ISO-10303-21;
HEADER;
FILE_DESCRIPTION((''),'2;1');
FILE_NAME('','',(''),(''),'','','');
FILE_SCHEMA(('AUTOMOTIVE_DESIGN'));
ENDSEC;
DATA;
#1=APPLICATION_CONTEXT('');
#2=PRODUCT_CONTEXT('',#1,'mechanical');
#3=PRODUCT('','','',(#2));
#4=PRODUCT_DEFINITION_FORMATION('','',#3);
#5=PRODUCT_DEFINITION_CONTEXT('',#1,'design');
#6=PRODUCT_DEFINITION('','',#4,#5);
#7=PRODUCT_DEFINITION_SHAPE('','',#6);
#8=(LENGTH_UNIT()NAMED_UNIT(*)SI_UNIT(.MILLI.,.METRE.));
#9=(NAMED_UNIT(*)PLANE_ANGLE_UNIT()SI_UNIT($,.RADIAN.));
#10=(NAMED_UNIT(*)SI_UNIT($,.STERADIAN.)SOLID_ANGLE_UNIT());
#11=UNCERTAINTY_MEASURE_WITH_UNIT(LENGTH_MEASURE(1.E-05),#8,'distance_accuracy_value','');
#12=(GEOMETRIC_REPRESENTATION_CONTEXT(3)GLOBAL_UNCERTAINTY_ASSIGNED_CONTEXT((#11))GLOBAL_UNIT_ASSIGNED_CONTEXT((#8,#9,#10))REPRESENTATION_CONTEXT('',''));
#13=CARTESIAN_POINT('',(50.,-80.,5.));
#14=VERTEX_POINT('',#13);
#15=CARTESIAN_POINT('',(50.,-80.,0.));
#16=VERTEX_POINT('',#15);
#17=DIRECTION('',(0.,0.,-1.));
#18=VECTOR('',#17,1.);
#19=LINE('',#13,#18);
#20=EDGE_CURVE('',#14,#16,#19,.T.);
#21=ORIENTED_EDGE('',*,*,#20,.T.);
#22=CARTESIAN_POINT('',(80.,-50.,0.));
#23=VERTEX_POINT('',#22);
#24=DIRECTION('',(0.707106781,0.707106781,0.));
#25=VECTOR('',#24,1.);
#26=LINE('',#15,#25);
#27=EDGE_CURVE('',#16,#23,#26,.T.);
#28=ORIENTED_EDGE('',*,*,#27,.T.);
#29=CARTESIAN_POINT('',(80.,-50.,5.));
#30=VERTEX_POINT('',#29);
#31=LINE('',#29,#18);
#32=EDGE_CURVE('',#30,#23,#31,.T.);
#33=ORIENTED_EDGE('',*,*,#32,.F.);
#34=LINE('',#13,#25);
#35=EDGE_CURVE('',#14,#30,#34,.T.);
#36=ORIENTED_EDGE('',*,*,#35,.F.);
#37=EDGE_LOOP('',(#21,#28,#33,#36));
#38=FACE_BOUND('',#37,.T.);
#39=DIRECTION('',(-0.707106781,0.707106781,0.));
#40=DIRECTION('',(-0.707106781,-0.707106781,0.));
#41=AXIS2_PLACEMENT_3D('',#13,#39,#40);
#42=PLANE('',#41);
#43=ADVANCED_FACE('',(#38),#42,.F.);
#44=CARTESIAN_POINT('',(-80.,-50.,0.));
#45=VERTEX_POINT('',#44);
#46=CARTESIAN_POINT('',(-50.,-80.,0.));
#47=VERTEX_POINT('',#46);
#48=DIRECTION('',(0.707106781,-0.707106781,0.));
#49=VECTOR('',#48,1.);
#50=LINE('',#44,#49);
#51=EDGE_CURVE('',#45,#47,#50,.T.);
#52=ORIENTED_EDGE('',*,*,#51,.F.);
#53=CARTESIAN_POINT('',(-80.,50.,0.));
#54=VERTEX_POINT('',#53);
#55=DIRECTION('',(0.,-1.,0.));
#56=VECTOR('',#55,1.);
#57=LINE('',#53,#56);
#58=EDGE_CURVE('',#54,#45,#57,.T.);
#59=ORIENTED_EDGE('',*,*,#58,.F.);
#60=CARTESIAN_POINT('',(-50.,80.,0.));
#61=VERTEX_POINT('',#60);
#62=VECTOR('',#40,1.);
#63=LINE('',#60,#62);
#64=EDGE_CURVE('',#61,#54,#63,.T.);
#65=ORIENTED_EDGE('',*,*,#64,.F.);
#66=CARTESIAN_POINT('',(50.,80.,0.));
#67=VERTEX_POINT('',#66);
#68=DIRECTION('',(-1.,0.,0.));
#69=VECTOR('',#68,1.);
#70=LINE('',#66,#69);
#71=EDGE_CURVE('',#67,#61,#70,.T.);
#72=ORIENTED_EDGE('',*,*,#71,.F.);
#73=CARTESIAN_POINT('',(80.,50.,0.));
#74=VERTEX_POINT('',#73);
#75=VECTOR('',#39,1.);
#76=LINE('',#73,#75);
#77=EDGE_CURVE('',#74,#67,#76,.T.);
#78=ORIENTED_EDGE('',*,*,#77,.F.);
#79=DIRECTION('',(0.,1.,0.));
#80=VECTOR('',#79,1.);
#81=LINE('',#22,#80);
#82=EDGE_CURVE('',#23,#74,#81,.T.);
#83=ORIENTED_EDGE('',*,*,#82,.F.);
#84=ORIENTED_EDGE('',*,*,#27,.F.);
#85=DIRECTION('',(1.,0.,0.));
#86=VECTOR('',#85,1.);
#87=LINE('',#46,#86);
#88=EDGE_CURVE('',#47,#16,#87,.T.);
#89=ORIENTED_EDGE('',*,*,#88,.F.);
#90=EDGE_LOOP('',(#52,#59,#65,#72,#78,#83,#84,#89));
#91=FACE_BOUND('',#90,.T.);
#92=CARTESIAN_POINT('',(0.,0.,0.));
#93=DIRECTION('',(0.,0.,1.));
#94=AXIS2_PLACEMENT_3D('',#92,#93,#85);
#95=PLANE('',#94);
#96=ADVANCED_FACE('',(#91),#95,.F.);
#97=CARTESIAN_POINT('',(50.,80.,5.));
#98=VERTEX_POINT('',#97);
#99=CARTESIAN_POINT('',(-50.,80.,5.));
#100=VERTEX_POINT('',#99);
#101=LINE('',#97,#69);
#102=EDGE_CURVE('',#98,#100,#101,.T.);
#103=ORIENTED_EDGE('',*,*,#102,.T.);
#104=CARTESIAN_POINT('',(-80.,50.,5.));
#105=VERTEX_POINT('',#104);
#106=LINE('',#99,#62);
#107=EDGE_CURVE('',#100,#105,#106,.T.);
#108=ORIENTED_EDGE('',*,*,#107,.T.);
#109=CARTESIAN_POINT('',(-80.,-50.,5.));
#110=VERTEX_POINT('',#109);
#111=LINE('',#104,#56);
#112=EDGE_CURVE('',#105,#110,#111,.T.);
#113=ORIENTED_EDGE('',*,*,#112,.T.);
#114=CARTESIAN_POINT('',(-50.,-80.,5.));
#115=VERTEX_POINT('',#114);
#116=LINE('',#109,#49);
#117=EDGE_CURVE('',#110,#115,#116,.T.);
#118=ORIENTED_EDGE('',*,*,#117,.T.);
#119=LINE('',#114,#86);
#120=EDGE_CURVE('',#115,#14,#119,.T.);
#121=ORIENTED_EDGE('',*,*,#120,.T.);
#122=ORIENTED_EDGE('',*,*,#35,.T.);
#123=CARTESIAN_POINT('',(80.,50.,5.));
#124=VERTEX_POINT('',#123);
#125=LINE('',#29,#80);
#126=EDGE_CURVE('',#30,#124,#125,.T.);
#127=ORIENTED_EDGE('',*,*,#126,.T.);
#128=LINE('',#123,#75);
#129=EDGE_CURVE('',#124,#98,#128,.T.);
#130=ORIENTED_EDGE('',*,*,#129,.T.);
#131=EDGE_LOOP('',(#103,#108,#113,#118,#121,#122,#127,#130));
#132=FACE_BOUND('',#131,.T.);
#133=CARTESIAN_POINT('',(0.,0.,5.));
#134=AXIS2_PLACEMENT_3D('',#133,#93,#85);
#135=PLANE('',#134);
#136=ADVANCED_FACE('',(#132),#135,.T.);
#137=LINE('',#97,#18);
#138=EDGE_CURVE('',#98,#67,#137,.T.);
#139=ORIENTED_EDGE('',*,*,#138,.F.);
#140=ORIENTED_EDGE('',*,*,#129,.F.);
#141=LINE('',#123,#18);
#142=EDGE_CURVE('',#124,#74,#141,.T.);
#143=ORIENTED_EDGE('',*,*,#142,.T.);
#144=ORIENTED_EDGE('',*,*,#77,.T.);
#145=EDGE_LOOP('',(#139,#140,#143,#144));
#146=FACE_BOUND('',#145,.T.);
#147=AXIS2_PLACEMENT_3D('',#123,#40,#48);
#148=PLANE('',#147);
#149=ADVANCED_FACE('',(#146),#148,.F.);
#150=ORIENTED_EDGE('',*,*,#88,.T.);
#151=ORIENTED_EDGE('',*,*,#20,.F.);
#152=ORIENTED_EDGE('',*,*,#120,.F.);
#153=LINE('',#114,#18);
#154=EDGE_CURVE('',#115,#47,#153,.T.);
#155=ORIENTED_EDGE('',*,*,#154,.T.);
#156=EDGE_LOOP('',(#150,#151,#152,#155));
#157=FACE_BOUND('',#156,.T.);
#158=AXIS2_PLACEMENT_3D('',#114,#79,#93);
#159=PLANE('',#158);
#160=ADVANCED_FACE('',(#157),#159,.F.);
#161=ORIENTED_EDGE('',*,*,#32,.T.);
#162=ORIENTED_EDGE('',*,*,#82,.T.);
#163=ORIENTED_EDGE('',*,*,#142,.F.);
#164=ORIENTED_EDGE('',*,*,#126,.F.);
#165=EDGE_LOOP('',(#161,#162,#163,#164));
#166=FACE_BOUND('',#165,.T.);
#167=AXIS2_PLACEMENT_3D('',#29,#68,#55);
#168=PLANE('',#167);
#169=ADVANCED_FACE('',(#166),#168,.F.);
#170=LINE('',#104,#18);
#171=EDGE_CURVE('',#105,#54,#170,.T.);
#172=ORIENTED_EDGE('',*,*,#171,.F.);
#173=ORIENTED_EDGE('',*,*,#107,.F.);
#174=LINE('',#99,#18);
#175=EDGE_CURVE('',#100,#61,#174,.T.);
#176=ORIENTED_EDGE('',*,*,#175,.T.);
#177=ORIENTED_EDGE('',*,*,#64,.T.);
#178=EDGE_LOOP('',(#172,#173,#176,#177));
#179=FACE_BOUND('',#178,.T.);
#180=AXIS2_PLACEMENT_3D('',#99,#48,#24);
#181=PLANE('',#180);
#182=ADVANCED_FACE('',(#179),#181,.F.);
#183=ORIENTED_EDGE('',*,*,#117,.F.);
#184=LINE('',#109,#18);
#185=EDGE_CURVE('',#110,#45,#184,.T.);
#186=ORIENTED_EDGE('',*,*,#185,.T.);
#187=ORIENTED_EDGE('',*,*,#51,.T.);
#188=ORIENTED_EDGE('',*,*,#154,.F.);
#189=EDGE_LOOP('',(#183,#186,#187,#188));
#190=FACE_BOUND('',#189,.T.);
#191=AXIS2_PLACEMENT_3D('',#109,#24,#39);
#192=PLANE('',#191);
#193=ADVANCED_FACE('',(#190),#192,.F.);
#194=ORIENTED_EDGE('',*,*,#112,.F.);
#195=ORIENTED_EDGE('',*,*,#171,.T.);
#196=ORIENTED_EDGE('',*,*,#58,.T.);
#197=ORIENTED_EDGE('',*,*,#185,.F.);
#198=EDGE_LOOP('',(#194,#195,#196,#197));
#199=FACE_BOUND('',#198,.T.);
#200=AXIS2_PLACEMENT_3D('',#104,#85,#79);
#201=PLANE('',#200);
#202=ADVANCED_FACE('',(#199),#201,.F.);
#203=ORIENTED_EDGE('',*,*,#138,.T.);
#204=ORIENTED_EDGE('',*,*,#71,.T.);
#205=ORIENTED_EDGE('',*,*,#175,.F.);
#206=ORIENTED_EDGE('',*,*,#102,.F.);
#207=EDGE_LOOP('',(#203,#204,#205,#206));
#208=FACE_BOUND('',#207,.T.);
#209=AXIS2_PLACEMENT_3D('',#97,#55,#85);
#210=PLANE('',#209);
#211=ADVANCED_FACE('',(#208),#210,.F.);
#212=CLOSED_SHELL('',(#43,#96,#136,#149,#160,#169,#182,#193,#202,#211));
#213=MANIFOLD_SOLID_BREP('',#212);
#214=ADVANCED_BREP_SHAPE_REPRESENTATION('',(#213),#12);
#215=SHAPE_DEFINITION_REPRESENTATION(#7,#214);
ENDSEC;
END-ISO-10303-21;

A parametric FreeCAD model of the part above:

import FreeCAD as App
import Part
import Sketcher


def add_polygon(sketch, points):
    """Adds a closed chain of lines whose ends are joined by coincident constraints."""
    first, n = sketch.GeometryCount, len(points)
    for a, b in zip(points, points[1:] + points[:1]):
        sketch.addGeometry(Part.LineSegment(App.Vector(*a, 0), App.Vector(*b, 0)), False)
    for i in range(n):
        sketch.addConstraint(Sketcher.Constraint("Coincident", first + i, 2, first + (i + 1) % n, 1))

doc = App.newDocument("Part")
params = doc.addObject("Spreadsheet::Sheet", "Params")
for row, (alias, value) in enumerate([
    ("sketch1_width", "100 mm"),
    ("pad1_length", "5 mm"),
], start=1):
    params.set(f"A{row}", alias)
    params.set(f"B{row}", "=" + value)
    params.setAlias(f"B{row}", alias)

body = doc.addObject("PartDesign::Body", "Body")

# Sketch on XY plane
sketch1 = doc.addObject("Sketcher::SketchObject", "Sketch")
body.addObject(sketch1)
sketch1.AttachmentSupport = (doc.XY_Plane, [""])
sketch1.MapMode = "FlatFace"
add_polygon(sketch1, [(-80, -50), (-50, -80), (50, -80), (80, -50), (80, 50), (50, 80), (-50, 80), (-80, 50)])  # lines 0-7
sketch1.addConstraint(Sketcher.Constraint("Horizontal", 1))
sketch1.addConstraint(Sketcher.Constraint("Vertical", 3))
sketch1.addConstraint(Sketcher.Constraint("Horizontal", 5))
sketch1.addConstraint(Sketcher.Constraint("Vertical", 7))
sketch1.addConstraint(Sketcher.Constraint("Symmetric", 0, 2, 4, 2, -1, 1))
sketch1.addConstraint(Sketcher.Constraint("Symmetric", 2, 2, 6, 2, -1, 1))
sketch1.addConstraint(Sketcher.Constraint("Perpendicular", 0, 2))
sketch1.addConstraint(Sketcher.Constraint("Perpendicular", 2, 4))
sketch1.addConstraint(Sketcher.Constraint("Perpendicular", 4, 6))
sketch1.addConstraint(Sketcher.Constraint("Horizontal", 3, 2, 6, 2))
sketch1.addConstraint(Sketcher.Constraint("Vertical", 1, 2, 4, 2))
sketch1.addConstraint(Sketcher.Constraint("Equal", 5, 3))
sketch1.addConstraint(Sketcher.Constraint("DistanceX", 1, 1, 1, 2, 100.0))
sketch1.addConstraint(Sketcher.Constraint("DistanceY", 0, 2, -1, 1, 80.0))
sketch1.setExpression("Constraints[20]", "Params.sketch1_width")
pad1 = doc.addObject("PartDesign::Pad", "Pad")
body.addObject(pad1)
pad1.Profile = sketch1
pad1.setExpression("Length", "Params.pad1_length")

doc.recompute()
